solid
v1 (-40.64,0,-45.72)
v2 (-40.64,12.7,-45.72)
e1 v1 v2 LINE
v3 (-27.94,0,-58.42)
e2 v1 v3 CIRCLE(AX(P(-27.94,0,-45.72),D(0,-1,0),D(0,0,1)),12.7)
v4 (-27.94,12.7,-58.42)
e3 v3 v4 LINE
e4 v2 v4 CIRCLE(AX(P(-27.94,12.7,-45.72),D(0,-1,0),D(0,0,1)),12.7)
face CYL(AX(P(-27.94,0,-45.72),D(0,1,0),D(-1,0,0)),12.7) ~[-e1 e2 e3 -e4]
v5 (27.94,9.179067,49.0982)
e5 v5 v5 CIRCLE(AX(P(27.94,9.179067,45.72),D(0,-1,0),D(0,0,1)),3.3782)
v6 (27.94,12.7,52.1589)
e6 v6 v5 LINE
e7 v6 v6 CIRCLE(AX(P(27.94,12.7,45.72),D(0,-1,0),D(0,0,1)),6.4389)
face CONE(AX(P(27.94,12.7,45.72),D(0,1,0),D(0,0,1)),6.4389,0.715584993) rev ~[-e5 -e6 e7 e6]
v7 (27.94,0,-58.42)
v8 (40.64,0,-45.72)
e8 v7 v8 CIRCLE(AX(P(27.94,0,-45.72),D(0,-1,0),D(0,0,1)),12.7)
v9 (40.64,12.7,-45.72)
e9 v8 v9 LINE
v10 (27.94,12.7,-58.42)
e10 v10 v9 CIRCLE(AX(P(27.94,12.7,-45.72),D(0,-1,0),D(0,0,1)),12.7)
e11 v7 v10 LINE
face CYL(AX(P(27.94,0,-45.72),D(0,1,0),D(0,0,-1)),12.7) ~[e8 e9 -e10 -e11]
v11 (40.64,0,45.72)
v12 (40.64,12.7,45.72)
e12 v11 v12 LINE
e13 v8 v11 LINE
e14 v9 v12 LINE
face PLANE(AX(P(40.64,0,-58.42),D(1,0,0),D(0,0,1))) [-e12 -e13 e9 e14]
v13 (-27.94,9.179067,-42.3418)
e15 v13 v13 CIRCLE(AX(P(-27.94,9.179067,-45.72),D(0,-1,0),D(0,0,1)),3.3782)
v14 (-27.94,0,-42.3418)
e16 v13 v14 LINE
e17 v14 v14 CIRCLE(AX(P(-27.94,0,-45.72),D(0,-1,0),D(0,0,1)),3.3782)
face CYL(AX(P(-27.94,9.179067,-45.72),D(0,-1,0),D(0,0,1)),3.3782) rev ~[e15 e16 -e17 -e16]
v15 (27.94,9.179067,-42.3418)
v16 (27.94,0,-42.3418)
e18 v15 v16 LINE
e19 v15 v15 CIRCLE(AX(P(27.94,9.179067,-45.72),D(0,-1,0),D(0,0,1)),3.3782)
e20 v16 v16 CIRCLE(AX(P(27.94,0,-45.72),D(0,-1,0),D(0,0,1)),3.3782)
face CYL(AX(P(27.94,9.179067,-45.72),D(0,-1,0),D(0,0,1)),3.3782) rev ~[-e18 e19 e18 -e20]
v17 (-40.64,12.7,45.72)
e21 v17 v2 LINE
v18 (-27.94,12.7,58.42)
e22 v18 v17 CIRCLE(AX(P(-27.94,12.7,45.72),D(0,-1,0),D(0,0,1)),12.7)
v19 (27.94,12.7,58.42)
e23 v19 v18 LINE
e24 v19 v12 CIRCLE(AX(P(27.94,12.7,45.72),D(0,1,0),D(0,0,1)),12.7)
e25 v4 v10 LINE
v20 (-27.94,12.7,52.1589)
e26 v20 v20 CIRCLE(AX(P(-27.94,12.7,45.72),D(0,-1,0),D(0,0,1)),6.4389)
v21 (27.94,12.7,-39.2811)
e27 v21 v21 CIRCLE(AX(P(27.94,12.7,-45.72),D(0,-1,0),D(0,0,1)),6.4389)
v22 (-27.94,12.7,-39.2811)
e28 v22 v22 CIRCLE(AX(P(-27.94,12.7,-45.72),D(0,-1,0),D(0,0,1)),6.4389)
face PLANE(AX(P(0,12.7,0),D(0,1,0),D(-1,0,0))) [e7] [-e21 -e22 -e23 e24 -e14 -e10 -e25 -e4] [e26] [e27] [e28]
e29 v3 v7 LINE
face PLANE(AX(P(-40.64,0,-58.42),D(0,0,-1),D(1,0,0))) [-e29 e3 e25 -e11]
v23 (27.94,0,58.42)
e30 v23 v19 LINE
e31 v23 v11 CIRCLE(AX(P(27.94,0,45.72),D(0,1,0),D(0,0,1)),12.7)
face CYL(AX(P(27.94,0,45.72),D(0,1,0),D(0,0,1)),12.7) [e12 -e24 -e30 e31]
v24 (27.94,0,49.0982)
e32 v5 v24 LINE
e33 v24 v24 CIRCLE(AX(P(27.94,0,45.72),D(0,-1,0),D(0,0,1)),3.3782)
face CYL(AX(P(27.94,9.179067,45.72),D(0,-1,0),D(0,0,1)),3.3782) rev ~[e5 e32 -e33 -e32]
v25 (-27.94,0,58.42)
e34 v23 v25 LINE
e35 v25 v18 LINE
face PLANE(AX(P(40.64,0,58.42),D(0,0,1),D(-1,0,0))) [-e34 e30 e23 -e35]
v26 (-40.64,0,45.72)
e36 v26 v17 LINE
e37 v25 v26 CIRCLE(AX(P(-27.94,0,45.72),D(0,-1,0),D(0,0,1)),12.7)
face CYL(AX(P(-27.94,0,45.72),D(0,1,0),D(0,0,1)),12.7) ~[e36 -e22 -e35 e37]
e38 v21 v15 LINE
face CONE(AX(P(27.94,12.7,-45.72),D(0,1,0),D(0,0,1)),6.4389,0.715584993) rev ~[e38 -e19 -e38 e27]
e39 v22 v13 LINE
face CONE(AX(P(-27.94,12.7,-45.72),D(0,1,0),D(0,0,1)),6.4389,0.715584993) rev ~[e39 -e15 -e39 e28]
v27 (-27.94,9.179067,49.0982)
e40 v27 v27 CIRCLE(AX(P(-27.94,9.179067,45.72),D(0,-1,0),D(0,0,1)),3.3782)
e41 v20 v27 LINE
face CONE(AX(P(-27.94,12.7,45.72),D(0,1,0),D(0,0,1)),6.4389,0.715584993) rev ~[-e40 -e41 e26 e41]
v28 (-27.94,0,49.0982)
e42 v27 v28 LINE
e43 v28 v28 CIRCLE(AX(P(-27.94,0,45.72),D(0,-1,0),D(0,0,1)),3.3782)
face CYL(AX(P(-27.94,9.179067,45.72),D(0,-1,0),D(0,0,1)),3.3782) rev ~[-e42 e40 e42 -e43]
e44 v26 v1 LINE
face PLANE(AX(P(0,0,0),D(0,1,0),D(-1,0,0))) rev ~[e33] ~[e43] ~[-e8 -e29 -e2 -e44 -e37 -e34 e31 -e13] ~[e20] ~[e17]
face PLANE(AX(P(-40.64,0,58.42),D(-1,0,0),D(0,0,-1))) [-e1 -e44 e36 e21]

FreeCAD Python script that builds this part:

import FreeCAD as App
import Part
import Sketcher

V = App.Vector
Q = App.Units.Quantity


def edges_at(feature, points):
    """Names of the edges that pass closest to the given points."""
    edges = feature.Shape.Edges
    near = lambda p: min(range(len(edges)), key=lambda i: edges[i].distToShape(Part.Vertex(*p))[0])
    return sorted({f"Edge{near(p) + 1}" for p in points})

doc = App.newDocument("Part")
body = doc.addObject("PartDesign::Body", "Body")

sketch1 = body.newObject("Sketcher::SketchObject", "Sketch")
sketch1.AttachmentSupport = (doc.getObject("XZ_Plane"), [""])
sketch1.MapMode = "FlatFace"
sketch1.addGeometry(Part.LineSegment(V(-41, 58, 0), V(41, 58, 0)), False)
sketch1.addGeometry(Part.LineSegment(V(41, 58, 0), V(41, -58, 0)), False)
sketch1.addGeometry(Part.LineSegment(V(41, -58, 0), V(-41, -58, 0)), False)
sketch1.addGeometry(Part.LineSegment(V(-41, -58, 0), V(-41, 58, 0)), False)
sketch1.addConstraint(Sketcher.Constraint("Coincident", 0, 2, 1, 1))
sketch1.addConstraint(Sketcher.Constraint("Coincident", 1, 2, 2, 1))
sketch1.addConstraint(Sketcher.Constraint("Coincident", 2, 2, 3, 1))
sketch1.addConstraint(Sketcher.Constraint("Coincident", 3, 2, 0, 1))
sketch1.addConstraint(Sketcher.Constraint("Horizontal", 0))
sketch1.addConstraint(Sketcher.Constraint("Vertical", 1))
sketch1.addConstraint(Sketcher.Constraint("Horizontal", 2))
sketch1.addConstraint(Sketcher.Constraint("Vertical", 3))
sketch1.addConstraint(Sketcher.Constraint("Symmetric", 0, 2, 2, 2, -1, 1))
sketch1.addConstraint(Sketcher.Constraint("DistanceX", 0, 1, 0, 2, Q("3.2 in")))
sketch1.addConstraint(Sketcher.Constraint("DistanceY", 1, 2, 1, 1, Q("4.6 in")))
pad1 = body.newObject("PartDesign::Pad", "Pad")
pad1.Profile = sketch1
pad1.Length = Q("0.5 in")
pad1.Reversed = True
doc.recompute()

fillet = body.newObject("PartDesign::Fillet", "Fillet")
fillet.Base = (pad1, edges_at(pad1, [
    (-40.64, 6.35, 58.42),
    (-40.64, 6.35, -58.42),
    (40.64, 6.35, 58.42),
    (40.64, 6.35, -58.42),
]))
fillet.Radius = Q("0.5 in")

sketch2 = body.newObject("Sketcher::SketchObject", "Sketch001")
sketch2.AttachmentSupport = (doc.getObject("XZ_Plane"), [""])
sketch2.MapMode = "FlatFace"
sketch2.AttachmentOffset = App.Placement(V(0, 0, -0.5 * 25.4), App.Rotation())
sketch2.addGeometry(Part.Circle(V(-27.9, -45.7, 0), V(0, 0, 1), 3.4), False)
sketch2.addConstraint(Sketcher.Constraint("Diameter", 0, Q("0.266 in")))
sketch2.addConstraint(Sketcher.Constraint("DistanceX", 0, 3, -1, 1, Q("1.1 in")))
sketch2.addConstraint(Sketcher.Constraint("DistanceY", 0, 3, -1, 1, Q("1.8 in")))
doc.recompute()
hole = body.newObject("PartDesign::Hole", "Hole")
hole.Profile = sketch2
hole.ThreadType = "None"
hole.Diameter = Q("0.266 in")
hole.DepthType = "ThroughAll"
hole.HoleCutType = "Countersink"
hole.HoleCutDiameter = Q("0.507 in")
hole.HoleCutCountersinkAngle = 82
hole.Reversed = True

sketch3 = body.newObject("Sketcher::SketchObject", "Sketch002")
sketch3.AttachmentSupport = (doc.getObject("XZ_Plane"), [""])
sketch3.MapMode = "FlatFace"
sketch3.AttachmentOffset = App.Placement(V(0, 0, -0.5 * 25.4), App.Rotation())
sketch3.addGeometry(Part.Circle(V(-27.9, 45.7, 0), V(0, 0, 1), 3.4), False)
sketch3.addConstraint(Sketcher.Constraint("Diameter", 0, Q("0.266 in")))
sketch3.addConstraint(Sketcher.Constraint("DistanceX", 0, 3, -1, 1, Q("1.1 in")))
sketch3.addConstraint(Sketcher.Constraint("DistanceY", -1, 1, 0, 3, Q("1.8 in")))
doc.recompute()
hole2 = body.newObject("PartDesign::Hole", "Hole001")
hole2.Profile = sketch3
hole2.ThreadType = "None"
hole2.Diameter = Q("0.266 in")
hole2.DepthType = "ThroughAll"
hole2.HoleCutType = "Countersink"
hole2.HoleCutDiameter = Q("0.507 in")
hole2.HoleCutCountersinkAngle = 82
hole2.Reversed = True

sketch4 = body.newObject("Sketcher::SketchObject", "Sketch003")
sketch4.AttachmentSupport = (doc.getObject("XZ_Plane"), [""])
sketch4.MapMode = "FlatFace"
sketch4.AttachmentOffset = App.Placement(V(0, 0, -0.5 * 25.4), App.Rotation())
sketch4.addGeometry(Part.Circle(V(27.9, 45.7, 0), V(0, 0, 1), 3.4), False)
sketch4.addConstraint(Sketcher.Constraint("Diameter", 0, Q("0.266 in")))
sketch4.addConstraint(Sketcher.Constraint("DistanceX", -1, 1, 0, 3, Q("1.1 in")))
sketch4.addConstraint(Sketcher.Constraint("DistanceY", -1, 1, 0, 3, Q("1.8 in")))
doc.recompute()
hole3 = body.newObject("PartDesign::Hole", "Hole002")
hole3.Profile = sketch4
hole3.ThreadType = "None"
hole3.Diameter = Q("0.266 in")
hole3.DepthType = "ThroughAll"
hole3.HoleCutType = "Countersink"
hole3.HoleCutDiameter = Q("0.507 in")
hole3.HoleCutCountersinkAngle = 82
hole3.Reversed = True

sketch5 = body.newObject("Sketcher::SketchObject", "Sketch004")
sketch5.AttachmentSupport = (doc.getObject("XZ_Plane"), [""])
sketch5.MapMode = "FlatFace"
sketch5.AttachmentOffset = App.Placement(V(0, 0, -0.5 * 25.4), App.Rotation())
sketch5.addGeometry(Part.Circle(V(27.9, -45.7, 0), V(0, 0, 1), 3.4), False)
sketch5.addConstraint(Sketcher.Constraint("Diameter", 0, Q("0.266 in")))
sketch5.addConstraint(Sketcher.Constraint("DistanceX", -1, 1, 0, 3, Q("1.1 in")))
sketch5.addConstraint(Sketcher.Constraint("DistanceY", 0, 3, -1, 1, Q("1.8 in")))
doc.recompute()
hole4 = body.newObject("PartDesign::Hole", "Hole003")
hole4.Profile = sketch5
hole4.ThreadType = "None"
hole4.Diameter = Q("0.266 in")
hole4.DepthType = "ThroughAll"
hole4.HoleCutType = "Countersink"
hole4.HoleCutDiameter = Q("0.507 in")
hole4.HoleCutCountersinkAngle = 82
hole4.Reversed = True

doc.recompute()
